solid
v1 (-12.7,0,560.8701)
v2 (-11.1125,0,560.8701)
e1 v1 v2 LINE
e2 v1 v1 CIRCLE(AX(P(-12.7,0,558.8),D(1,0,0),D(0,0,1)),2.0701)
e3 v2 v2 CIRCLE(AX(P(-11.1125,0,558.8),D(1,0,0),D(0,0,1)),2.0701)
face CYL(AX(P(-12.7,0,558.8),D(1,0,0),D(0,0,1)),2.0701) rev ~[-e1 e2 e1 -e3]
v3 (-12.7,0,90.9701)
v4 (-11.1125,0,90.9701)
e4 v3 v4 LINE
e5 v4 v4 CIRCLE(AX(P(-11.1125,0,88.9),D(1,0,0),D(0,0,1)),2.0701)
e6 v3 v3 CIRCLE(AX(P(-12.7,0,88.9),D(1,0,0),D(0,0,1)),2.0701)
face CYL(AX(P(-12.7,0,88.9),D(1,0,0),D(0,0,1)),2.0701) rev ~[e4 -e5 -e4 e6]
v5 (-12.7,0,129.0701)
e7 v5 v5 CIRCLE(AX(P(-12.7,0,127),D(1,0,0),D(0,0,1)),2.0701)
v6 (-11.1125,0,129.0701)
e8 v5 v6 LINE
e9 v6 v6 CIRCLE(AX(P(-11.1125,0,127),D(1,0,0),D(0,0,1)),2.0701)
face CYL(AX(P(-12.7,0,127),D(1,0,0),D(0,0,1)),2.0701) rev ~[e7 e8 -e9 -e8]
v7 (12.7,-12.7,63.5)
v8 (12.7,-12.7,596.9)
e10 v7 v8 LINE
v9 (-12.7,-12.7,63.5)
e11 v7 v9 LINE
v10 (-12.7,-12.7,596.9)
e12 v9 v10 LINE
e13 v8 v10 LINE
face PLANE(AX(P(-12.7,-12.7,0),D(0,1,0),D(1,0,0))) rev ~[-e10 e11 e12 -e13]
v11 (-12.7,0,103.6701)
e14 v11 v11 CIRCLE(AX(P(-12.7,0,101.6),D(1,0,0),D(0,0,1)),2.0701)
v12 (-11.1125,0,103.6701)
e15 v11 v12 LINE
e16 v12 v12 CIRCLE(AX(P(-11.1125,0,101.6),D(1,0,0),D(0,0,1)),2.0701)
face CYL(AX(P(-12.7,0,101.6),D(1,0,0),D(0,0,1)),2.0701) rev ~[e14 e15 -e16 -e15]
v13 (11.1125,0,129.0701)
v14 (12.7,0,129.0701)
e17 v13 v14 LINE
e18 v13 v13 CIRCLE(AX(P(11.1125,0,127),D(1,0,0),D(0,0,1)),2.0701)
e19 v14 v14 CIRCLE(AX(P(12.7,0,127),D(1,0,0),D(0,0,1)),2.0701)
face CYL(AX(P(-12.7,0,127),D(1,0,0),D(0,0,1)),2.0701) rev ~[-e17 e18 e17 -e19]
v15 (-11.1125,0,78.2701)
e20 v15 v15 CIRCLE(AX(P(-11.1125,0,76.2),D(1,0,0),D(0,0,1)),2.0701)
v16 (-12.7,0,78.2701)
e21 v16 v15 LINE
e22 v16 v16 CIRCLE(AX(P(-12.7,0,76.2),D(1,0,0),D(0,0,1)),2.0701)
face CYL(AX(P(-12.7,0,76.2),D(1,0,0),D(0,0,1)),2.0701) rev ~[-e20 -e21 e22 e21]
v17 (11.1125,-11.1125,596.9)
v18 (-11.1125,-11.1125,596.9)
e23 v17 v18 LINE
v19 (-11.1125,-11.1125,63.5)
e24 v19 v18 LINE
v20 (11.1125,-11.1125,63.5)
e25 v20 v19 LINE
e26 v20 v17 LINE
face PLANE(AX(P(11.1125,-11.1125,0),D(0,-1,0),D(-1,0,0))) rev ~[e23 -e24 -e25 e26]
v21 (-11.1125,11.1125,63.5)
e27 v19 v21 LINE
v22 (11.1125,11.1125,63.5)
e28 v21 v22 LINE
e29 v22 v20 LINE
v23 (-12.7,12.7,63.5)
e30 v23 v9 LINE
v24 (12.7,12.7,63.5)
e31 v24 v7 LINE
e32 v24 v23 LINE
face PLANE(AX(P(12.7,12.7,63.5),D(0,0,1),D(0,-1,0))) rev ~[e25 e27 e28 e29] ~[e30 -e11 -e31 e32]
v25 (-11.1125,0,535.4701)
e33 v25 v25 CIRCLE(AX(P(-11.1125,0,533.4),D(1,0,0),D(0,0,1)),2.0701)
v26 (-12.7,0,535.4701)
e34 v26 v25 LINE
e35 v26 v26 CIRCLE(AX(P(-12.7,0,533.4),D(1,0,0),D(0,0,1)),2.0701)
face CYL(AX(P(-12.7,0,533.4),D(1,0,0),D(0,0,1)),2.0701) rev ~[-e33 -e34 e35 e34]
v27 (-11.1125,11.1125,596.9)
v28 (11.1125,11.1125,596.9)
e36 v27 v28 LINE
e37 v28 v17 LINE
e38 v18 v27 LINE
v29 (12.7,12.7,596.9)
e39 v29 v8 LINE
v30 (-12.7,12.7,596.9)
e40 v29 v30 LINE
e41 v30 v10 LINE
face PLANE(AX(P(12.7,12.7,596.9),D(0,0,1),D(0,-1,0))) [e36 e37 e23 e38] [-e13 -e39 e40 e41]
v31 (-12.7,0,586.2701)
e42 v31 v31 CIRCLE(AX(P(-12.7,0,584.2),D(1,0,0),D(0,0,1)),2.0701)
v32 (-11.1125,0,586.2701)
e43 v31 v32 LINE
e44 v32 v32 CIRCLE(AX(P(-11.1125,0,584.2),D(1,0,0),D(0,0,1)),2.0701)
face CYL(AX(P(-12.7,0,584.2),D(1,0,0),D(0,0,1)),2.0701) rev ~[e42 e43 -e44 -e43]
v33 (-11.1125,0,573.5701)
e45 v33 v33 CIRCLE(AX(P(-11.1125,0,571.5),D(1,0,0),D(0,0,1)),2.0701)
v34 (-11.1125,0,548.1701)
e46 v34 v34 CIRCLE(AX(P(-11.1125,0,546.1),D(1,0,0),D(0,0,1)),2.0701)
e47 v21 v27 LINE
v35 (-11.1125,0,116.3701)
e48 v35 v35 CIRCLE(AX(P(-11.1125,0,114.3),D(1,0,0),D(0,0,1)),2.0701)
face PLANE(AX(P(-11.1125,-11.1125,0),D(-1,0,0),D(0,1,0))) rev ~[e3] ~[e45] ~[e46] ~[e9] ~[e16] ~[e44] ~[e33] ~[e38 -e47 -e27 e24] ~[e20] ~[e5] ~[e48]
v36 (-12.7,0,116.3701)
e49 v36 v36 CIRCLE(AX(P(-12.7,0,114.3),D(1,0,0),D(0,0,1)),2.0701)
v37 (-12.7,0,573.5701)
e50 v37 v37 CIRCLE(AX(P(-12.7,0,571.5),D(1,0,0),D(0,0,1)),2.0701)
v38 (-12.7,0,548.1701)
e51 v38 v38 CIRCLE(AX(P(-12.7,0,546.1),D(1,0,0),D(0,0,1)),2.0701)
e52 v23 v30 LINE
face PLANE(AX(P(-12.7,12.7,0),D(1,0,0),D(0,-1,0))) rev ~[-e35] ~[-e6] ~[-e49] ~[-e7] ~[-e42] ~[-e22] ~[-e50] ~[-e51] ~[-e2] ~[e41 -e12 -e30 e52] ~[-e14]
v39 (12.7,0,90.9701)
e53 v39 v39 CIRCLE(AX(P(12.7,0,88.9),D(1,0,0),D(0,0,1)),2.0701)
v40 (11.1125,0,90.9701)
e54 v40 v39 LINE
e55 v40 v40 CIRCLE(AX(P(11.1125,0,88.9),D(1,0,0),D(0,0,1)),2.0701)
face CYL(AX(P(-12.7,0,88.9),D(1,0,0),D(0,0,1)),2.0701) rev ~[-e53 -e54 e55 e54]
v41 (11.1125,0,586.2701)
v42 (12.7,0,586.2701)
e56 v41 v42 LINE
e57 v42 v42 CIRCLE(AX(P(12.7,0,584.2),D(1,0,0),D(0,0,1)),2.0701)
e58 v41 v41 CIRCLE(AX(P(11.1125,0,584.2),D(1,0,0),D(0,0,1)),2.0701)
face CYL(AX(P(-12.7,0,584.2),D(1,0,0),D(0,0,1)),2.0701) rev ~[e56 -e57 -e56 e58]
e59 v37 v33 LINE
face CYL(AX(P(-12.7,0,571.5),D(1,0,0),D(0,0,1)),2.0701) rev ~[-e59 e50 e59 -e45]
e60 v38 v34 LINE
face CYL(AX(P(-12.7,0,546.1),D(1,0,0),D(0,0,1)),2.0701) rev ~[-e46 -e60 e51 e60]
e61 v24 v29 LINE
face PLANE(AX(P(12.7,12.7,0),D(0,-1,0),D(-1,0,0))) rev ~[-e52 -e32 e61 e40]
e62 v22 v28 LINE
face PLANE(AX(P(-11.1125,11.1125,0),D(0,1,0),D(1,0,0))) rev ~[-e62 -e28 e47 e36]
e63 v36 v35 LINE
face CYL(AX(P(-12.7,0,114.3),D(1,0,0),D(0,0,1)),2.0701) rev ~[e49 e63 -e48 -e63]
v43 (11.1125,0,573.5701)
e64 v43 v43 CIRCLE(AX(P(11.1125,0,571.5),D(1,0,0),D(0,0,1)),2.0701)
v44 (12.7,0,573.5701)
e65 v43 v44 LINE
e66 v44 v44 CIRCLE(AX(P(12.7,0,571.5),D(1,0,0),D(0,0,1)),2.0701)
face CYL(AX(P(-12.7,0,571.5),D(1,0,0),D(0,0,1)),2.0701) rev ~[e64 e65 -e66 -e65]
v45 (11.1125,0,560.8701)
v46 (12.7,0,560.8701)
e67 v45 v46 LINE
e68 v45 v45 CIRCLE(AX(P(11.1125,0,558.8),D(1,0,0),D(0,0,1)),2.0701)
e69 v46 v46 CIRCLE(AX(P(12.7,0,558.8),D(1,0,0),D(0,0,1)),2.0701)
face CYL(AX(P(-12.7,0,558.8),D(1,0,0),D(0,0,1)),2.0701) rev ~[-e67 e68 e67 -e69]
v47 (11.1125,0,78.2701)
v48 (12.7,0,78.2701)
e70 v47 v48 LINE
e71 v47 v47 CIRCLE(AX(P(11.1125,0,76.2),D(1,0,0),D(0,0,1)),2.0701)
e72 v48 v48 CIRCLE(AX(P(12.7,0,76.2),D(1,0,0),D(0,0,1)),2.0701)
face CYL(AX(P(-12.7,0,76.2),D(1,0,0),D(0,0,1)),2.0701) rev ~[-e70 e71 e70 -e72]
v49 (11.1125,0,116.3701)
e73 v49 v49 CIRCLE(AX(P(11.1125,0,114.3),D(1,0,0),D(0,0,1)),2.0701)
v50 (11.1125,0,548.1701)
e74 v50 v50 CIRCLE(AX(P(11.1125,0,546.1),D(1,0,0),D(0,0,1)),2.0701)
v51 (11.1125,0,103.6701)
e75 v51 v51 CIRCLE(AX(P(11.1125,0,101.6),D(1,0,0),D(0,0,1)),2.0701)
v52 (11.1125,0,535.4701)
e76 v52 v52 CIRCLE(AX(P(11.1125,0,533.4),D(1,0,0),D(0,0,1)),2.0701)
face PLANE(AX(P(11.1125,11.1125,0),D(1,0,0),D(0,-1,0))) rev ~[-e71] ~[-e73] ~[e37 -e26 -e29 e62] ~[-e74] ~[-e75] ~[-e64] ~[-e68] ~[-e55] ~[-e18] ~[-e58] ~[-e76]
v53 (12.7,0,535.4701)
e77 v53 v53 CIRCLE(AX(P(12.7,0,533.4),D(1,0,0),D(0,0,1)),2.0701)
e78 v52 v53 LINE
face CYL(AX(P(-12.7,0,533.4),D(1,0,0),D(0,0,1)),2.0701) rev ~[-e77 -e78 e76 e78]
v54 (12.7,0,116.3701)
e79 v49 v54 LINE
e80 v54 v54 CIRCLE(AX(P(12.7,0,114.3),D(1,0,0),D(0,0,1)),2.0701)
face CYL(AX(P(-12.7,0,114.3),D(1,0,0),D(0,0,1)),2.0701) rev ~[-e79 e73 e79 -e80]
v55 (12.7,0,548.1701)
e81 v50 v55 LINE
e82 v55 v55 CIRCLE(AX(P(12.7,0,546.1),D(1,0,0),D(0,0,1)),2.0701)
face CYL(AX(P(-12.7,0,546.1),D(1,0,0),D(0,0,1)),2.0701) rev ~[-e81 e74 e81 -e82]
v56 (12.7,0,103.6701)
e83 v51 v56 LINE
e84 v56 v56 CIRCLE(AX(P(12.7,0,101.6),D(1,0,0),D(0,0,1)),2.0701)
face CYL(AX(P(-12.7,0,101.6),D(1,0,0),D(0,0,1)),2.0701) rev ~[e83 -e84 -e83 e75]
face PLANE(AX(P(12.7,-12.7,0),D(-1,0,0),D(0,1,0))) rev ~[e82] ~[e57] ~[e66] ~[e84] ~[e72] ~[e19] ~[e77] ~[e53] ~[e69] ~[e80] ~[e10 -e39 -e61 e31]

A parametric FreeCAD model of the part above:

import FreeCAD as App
import Part
import Sketcher

V = App.Vector
Q = App.Units.Quantity

doc = App.newDocument("Part")
body = doc.addObject("PartDesign::Body", "Body")

sketch1 = doc.addObject("Sketcher::SketchObject", "Sketch")
body.addObject(sketch1)
sketch1.AttachmentSupport = (doc.XY_Plane, [""])
sketch1.MapMode = "FlatFace"
sketch1.addGeometry(Part.LineSegment(V(-13, 13, 0), V(-13, -13, 0)), False)
sketch1.addGeometry(Part.LineSegment(V(-13, -13, 0), V(13, -13, 0)), False)
sketch1.addGeometry(Part.LineSegment(V(13, -13, 0), V(13, 13, 0)), False)
sketch1.addGeometry(Part.LineSegment(V(13, 13, 0), V(-13, 13, 0)), False)
sketch1.addGeometry(Part.LineSegment(V(10, 10, 0), V(10, -10, 0)), False)
sketch1.addGeometry(Part.LineSegment(V(10, -10, 0), V(-10, -10, 0)), False)
sketch1.addGeometry(Part.LineSegment(V(-10, -10, 0), V(-10, 10, 0)), False)
sketch1.addGeometry(Part.LineSegment(V(-10, 10, 0), V(10, 10, 0)), False)
sketch1.addConstraint(Sketcher.Constraint("Coincident", 0, 2, 1, 1))
sketch1.addConstraint(Sketcher.Constraint("Coincident", 1, 2, 2, 1))
sketch1.addConstraint(Sketcher.Constraint("Coincident", 2, 2, 3, 1))
sketch1.addConstraint(Sketcher.Constraint("Coincident", 3, 2, 0, 1))
sketch1.addConstraint(Sketcher.Constraint("Coincident", 4, 2, 5, 1))
sketch1.addConstraint(Sketcher.Constraint("Coincident", 5, 2, 6, 1))
sketch1.addConstraint(Sketcher.Constraint("Coincident", 6, 2, 7, 1))
sketch1.addConstraint(Sketcher.Constraint("Coincident", 7, 2, 4, 1))
sketch1.addConstraint(Sketcher.Constraint("Vertical", 0))
sketch1.addConstraint(Sketcher.Constraint("Horizontal", 1))
sketch1.addConstraint(Sketcher.Constraint("Vertical", 2))
sketch1.addConstraint(Sketcher.Constraint("Horizontal", 3))
sketch1.addConstraint(Sketcher.Constraint("Vertical", 4))
sketch1.addConstraint(Sketcher.Constraint("Horizontal", 5))
sketch1.addConstraint(Sketcher.Constraint("Vertical", 6))
sketch1.addConstraint(Sketcher.Constraint("Horizontal", 7))
sketch1.addConstraint(Sketcher.Constraint("Symmetric", 0, 2, 2, 2, -1, 1))
sketch1.addConstraint(Sketcher.Constraint("Symmetric", 4, 2, 6, 2, -1, 1))
sketch1.addConstraint(Sketcher.Constraint("Equal", 3, 0))
sketch1.addConstraint(Sketcher.Constraint("Equal", 7, 4))
sketch1.addConstraint(Sketcher.Constraint("DistanceX", 1, 1, 1, 2, Q("1 in")))
sketch1.addConstraint(Sketcher.Constraint("DistanceX", 4, 2, 1, 2, Q("0.125 in")))
pad1 = doc.addObject("PartDesign::Pad", "Pad")
body.addObject(pad1)
pad1.Profile = sketch1
pad1.Length = Q("26 in")

sketch2 = doc.addObject("Sketcher::SketchObject", "Sketch001")
body.addObject(sketch2)
sketch2.AttachmentSupport = (doc.YZ_Plane, [""])
sketch2.MapMode = "FlatFace"
sketch2.AttachmentOffset = App.Placement(V(0, 0, -0.5 * 25.4), App.Rotation())
sketch2.addGeometry(Part.Circle(V(0, 127, 0), V(0, 0, 1), 2.1), False)
sketch2.addGeometry(Part.Circle(V(0, 114.3, 0), V(0, 0, 1), 2.1), False)
sketch2.addGeometry(Part.Circle(V(0, 101.6, 0), V(0, 0, 1), 2.1), False)
sketch2.addGeometry(Part.Circle(V(0, 88.9, 0), V(0, 0, 1), 2.1), False)
sketch2.addGeometry(Part.Circle(V(0, 76.2, 0), V(0, 0, 1), 2.1), False)
sketch2.addGeometry(Part.Circle(V(0, 584.2, 0), V(0, 0, 1), 2.1), False)
sketch2.addGeometry(Part.Circle(V(0, 571.5, 0), V(0, 0, 1), 2.1), False)
sketch2.addGeometry(Part.Circle(V(0, 558.8, 0), V(0, 0, 1), 2.1), False)
sketch2.addGeometry(Part.Circle(V(0, 546.1, 0), V(0, 0, 1), 2.1), False)
sketch2.addGeometry(Part.Circle(V(0, 533.4, 0), V(0, 0, 1), 2.1), False)
sketch2.addConstraint(Sketcher.Constraint("Equal", 0, 1))
sketch2.addConstraint(Sketcher.Constraint("Equal", 1, 2))
sketch2.addConstraint(Sketcher.Constraint("Equal", 2, 3))
sketch2.addConstraint(Sketcher.Constraint("Equal", 3, 4))
sketch2.addConstraint(Sketcher.Constraint("Equal", 4, 5))
sketch2.addConstraint(Sketcher.Constraint("Equal", 5, 6))
sketch2.addConstraint(Sketcher.Constraint("Equal", 6, 7))
sketch2.addConstraint(Sketcher.Constraint("Equal", 7, 8))
sketch2.addConstraint(Sketcher.Constraint("Equal", 8, 9))
sketch2.addConstraint(Sketcher.Constraint("PointOnObject", 0, 3, -2))
sketch2.addConstraint(Sketcher.Constraint("PointOnObject", 1, 3, -2))
sketch2.addConstraint(Sketcher.Constraint("PointOnObject", 2, 3, -2))
sketch2.addConstraint(Sketcher.Constraint("PointOnObject", 3, 3, -2))
sketch2.addConstraint(Sketcher.Constraint("PointOnObject", 4, 3, -2))
sketch2.addConstraint(Sketcher.Constraint("PointOnObject", 5, 3, -2))
sketch2.addConstraint(Sketcher.Constraint("PointOnObject", 6, 3, -2))
sketch2.addConstraint(Sketcher.Constraint("PointOnObject", 7, 3, -2))
sketch2.addConstraint(Sketcher.Constraint("PointOnObject", 8, 3, -2))
sketch2.addConstraint(Sketcher.Constraint("PointOnObject", 9, 3, -2))
sketch2.addConstraint(Sketcher.Constraint("Diameter", 0, Q("0.163 in")))
sketch2.addConstraint(Sketcher.Constraint("DistanceY", -1, 1, 0, 3, Q("5 in")))
sketch2.addConstraint(Sketcher.Constraint("DistanceY", -1, 1, 2, 3, Q("4 in")))
sketch2.addConstraint(Sketcher.Constraint("DistanceY", -1, 1, 4, 3, Q("3 in")))
sketch2.addConstraint(Sketcher.Constraint("DistanceY", -1, 1, 5, 3, Q("23 in")))
sketch2.addConstraint(Sketcher.Constraint("DistanceY", -1, 1, 7, 3, Q("22 in")))
sketch2.addConstraint(Sketcher.Constraint("DistanceY", -1, 1, 9, 3, Q("21 in")))
sketch2.addConstraint(Sketcher.Constraint("DistanceY", 3, 3, 1, 3, Q("1 in")))
sketch2.addConstraint(Sketcher.Constraint("DistanceY", 1, 3, 6, 3, Q("18 in")))
sketch2.addConstraint(Sketcher.Constraint("DistanceY", 8, 3, 6, 3, Q("1 in")))
sketch2.addConstraint(Sketcher.Constraint("DistanceY", -1, 1, 1, 3, Q("4.5 in")))
doc.recompute()
hole = doc.addObject("PartDesign::Hole", "Hole")
body.addObject(hole)
hole.Profile = sketch2
hole.ThreadType = "None"
hole.Diameter = Q("0.163 in")
hole.DepthType = "ThroughAll"
hole.Reversed = True

sketch3 = doc.addObject("Sketcher::SketchObject", "Sketch002")
body.addObject(sketch3)
sketch3.AttachmentSupport = (doc.XY_Plane, [""])
sketch3.MapMode = "FlatFace"
sketch3.addGeometry(Part.LineSegment(V(11, 11, 0), V(11, -11, 0)), False)
sketch3.addGeometry(Part.LineSegment(V(11, -11, 0), V(-11, -11, 0)), False)
sketch3.addGeometry(Part.LineSegment(V(-11, -11, 0), V(-11, 11, 0)), False)
sketch3.addGeometry(Part.LineSegment(V(-11, 11, 0), V(11, 11, 0)), False)
sketch3.addGeometry(Part.LineSegment(V(10, 10, 0), V(-10, 10, 0)), False)
sketch3.addGeometry(Part.LineSegment(V(-10, 10, 0), V(-10, -10, 0)), False)
sketch3.addGeometry(Part.LineSegment(V(-10, -10, 0), V(10, -10, 0)), False)
sketch3.addGeometry(Part.LineSegment(V(10, -10, 0), V(10, 10, 0)), False)
sketch3.addConstraint(Sketcher.Constraint("Coincident", 0, 2, 1, 1))
sketch3.addConstraint(Sketcher.Constraint("Coincident", 1, 2, 2, 1))
sketch3.addConstraint(Sketcher.Constraint("Coincident", 2, 2, 3, 1))
sketch3.addConstraint(Sketcher.Constraint("Coincident", 3, 2, 0, 1))
sketch3.addConstraint(Sketcher.Constraint("Coincident", 4, 2, 5, 1))
sketch3.addConstraint(Sketcher.Constraint("Coincident", 5, 2, 6, 1))
sketch3.addConstraint(Sketcher.Constraint("Coincident", 6, 2, 7, 1))
sketch3.addConstraint(Sketcher.Constraint("Coincident", 7, 2, 4, 1))
sketch3.addConstraint(Sketcher.Constraint("Vertical", 0))
sketch3.addConstraint(Sketcher.Constraint("Horizontal", 1))
sketch3.addConstraint(Sketcher.Constraint("Vertical", 2))
sketch3.addConstraint(Sketcher.Constraint("Horizontal", 3))
sketch3.addConstraint(Sketcher.Constraint("Horizontal", 4))
sketch3.addConstraint(Sketcher.Constraint("Vertical", 5))
sketch3.addConstraint(Sketcher.Constraint("Horizontal", 6))
sketch3.addConstraint(Sketcher.Constraint("Vertical", 7))
sketch3.addConstraint(Sketcher.Constraint("Symmetric", 0, 2, 2, 2, -1, 1))
sketch3.addConstraint(Sketcher.Constraint("Symmetric", 4, 2, 6, 2, -1, 1))
sketch3.addConstraint(Sketcher.Constraint("Equal", 3, 0))
sketch3.addConstraint(Sketcher.Constraint("Equal", 6, 5))
sketch3.addConstraint(Sketcher.Constraint("DistanceX", 2, 2, 4, 2, Q("0.0625 in")))
sketch3.addConstraint(Sketcher.Constraint("DistanceX", 4, 2, 4, 1, Q("0.75 in")))
pocket1 = doc.addObject("PartDesign::Pocket", "Pocket")
body.addObject(pocket1)
pocket1.Profile = sketch3
pocket1.Type = "ThroughAll"
pocket1.Reversed = True

sketch4 = doc.addObject("Sketcher::SketchObject", "Sketch003")
body.addObject(sketch4)
sketch4.AttachmentSupport = (doc.YZ_Plane, [""])
sketch4.MapMode = "FlatFace"
sketch4.AttachmentOffset = App.Placement(V(0, 0, 0.5 * 25.4), App.Rotation())
sketch4.addGeometry(Part.LineSegment(V(13, 64, 0), V(-13, 64, 0)), False)
sketch4.addGeometry(Part.LineSegment(V(-13, 64, 0), V(-13, 0, 0)), False)
sketch4.addGeometry(Part.LineSegment(V(-13, 0, 0), V(13, 0, 0)), False)
sketch4.addGeometry(Part.LineSegment(V(13, 0, 0), V(13, 64, 0)), False)
sketch4.addGeometry(Part.LineSegment(V(13, 597, 0), V(13, 660, 0)), False)
sketch4.addGeometry(Part.LineSegment(V(13, 660, 0), V(-13, 660, 0)), False)
sketch4.addGeometry(Part.LineSegment(V(-13, 660, 0), V(-13, 597, 0)), False)
sketch4.addGeometry(Part.LineSegment(V(-13, 597, 0), V(13, 597, 0)), False)
sketch4.addConstraint(Sketcher.Constraint("Coincident", 0, 2, 1, 1))
sketch4.addConstraint(Sketcher.Constraint("Coincident", 1, 2, 2, 1))
sketch4.addConstraint(Sketcher.Constraint("Coincident", 2, 2, 3, 1))
sketch4.addConstraint(Sketcher.Constraint("Coincident", 3, 2, 0, 1))
sketch4.addConstraint(Sketcher.Constraint("Coincident", 4, 2, 5, 1))
sketch4.addConstraint(Sketcher.Constraint("Coincident", 5, 2, 6, 1))
sketch4.addConstraint(Sketcher.Constraint("Coincident", 6, 2, 7, 1))
sketch4.addConstraint(Sketcher.Constraint("Coincident", 7, 2, 4, 1))
sketch4.addConstraint(Sketcher.Constraint("Horizontal", 0))
sketch4.addConstraint(Sketcher.Constraint("Vertical", 1))
sketch4.addConstraint(Sketcher.Constraint("Horizontal", 2))
sketch4.addConstraint(Sketcher.Constraint("Vertical", 3))
sketch4.addConstraint(Sketcher.Constraint("Vertical", 4))
sketch4.addConstraint(Sketcher.Constraint("Horizontal", 5))
sketch4.addConstraint(Sketcher.Constraint("Vertical", 6))
sketch4.addConstraint(Sketcher.Constraint("Horizontal", 7))
sketch4.addConstraint(Sketcher.Constraint("Symmetric", 1, 2, 2, 2, -1, 1))
sketch4.addConstraint(Sketcher.Constraint("Vertical", 3, 2, 4, 2))
sketch4.addConstraint(Sketcher.Constraint("Vertical", 1, 2, 5, 2))
sketch4.addConstraint(Sketcher.Constraint("Equal", 3, 4))
sketch4.addConstraint(Sketcher.Constraint("DistanceY", 1, 2, 1, 1, Q("2.5 in")))
sketch4.addConstraint(Sketcher.Constraint("DistanceX", 0, 2, 0, 1, Q("1 in")))
sketch4.addConstraint(Sketcher.Constraint("DistanceY", -1, 1, 4, 2, Q("26 in")))
pocket2 = doc.addObject("PartDesign::Pocket", "Pocket001")
body.addObject(pocket2)
pocket2.Profile = sketch4
pocket2.Type = "ThroughAll"

doc.recompute()
